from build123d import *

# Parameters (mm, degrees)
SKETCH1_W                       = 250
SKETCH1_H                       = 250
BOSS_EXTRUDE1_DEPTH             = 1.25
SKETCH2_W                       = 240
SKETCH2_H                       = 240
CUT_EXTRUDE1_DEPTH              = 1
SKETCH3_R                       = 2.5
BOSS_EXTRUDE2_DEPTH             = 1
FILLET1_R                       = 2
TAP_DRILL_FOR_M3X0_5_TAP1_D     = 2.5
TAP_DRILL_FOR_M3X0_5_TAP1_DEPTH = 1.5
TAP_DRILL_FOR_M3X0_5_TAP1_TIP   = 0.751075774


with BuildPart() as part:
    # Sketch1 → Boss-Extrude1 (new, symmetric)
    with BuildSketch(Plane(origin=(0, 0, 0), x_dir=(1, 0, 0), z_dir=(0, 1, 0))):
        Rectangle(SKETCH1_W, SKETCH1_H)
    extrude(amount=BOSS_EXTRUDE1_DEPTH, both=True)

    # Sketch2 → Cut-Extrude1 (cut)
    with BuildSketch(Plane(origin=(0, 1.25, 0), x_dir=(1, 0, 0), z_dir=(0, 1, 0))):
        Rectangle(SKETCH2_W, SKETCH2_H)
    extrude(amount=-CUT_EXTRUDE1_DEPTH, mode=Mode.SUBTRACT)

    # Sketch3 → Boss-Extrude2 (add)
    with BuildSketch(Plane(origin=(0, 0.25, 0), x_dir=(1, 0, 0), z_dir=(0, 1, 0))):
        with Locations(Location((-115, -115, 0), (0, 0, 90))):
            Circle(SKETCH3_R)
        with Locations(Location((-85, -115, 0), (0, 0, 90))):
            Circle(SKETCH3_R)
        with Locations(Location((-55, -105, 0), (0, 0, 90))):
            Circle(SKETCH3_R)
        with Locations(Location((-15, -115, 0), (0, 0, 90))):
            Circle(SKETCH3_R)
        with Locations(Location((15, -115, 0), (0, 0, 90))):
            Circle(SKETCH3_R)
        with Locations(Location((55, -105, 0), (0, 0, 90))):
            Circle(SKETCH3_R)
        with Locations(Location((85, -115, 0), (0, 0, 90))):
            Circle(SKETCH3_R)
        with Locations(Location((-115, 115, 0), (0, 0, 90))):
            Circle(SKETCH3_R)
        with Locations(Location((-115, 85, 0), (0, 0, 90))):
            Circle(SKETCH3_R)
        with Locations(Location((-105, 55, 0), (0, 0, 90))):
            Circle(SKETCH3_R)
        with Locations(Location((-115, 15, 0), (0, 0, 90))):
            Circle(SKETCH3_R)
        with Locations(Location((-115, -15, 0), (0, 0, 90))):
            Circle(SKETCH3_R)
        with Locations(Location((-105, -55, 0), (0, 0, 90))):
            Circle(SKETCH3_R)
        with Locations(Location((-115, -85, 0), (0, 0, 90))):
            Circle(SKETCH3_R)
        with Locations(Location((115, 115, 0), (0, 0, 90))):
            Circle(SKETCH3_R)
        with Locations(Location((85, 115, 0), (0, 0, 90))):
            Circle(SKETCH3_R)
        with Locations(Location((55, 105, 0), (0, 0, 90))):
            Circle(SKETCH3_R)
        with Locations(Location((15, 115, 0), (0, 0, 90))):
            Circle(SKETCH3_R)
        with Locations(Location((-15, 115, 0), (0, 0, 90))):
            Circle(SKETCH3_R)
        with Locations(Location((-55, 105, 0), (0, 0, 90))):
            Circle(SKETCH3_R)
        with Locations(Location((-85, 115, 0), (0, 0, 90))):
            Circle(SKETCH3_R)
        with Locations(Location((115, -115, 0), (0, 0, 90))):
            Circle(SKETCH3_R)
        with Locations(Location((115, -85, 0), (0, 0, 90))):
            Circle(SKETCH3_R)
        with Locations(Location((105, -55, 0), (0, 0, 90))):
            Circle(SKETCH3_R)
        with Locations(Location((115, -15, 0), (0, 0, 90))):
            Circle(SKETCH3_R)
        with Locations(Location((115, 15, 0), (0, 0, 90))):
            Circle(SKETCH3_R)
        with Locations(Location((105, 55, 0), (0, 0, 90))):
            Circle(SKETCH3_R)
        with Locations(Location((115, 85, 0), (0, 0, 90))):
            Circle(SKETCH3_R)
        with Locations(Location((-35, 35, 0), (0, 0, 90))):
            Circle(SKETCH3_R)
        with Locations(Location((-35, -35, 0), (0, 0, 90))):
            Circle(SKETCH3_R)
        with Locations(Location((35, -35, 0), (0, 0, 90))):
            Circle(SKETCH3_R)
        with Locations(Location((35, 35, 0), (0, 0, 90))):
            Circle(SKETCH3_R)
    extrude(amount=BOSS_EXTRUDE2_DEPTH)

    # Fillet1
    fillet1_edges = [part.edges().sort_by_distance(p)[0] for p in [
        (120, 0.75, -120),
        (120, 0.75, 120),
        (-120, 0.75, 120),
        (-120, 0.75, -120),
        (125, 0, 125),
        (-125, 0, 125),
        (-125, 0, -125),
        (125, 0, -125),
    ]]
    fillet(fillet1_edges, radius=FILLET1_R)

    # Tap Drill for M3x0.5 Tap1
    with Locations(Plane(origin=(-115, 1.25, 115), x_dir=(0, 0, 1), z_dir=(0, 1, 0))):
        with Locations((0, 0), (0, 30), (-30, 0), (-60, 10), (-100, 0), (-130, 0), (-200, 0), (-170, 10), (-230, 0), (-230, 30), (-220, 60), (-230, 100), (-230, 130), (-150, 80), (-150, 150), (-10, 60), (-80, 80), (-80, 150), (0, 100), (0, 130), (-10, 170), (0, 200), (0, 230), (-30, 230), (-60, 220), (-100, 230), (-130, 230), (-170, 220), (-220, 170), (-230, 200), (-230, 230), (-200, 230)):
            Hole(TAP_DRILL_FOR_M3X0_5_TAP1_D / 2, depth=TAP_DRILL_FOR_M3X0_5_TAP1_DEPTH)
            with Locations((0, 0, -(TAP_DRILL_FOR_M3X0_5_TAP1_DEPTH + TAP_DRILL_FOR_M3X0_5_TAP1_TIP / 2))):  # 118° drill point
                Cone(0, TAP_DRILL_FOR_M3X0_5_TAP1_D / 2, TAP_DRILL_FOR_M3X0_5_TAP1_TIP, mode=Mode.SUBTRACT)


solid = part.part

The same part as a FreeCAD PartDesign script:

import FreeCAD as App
import Part
import Sketcher


def edges_at(feature, points):
    """Names of the edges that pass closest to the given points."""
    edges = feature.Shape.Edges
    near = lambda p: min(range(len(edges)), key=lambda i: edges[i].distToShape(Part.Vertex(*p))[0])
    return sorted({f"Edge{near(p) + 1}" for p in points})

doc = App.newDocument("Part")
body = doc.addObject("PartDesign::Body", "Body")

# Sketch on XZ plane
sketch1 = body.newObject("Sketcher::SketchObject", "Sketch")
sketch1.AttachmentSupport = (doc.getObject("XZ_Plane"), [""])
sketch1.MapMode = "FlatFace"
sketch1.addGeometry([
    Part.LineSegment(App.Vector(-125, -125, 0), App.Vector(-125, 125, 0)),
    Part.LineSegment(App.Vector(-125, 125, 0), App.Vector(125, 125, 0)),
    Part.LineSegment(App.Vector(125, 125, 0), App.Vector(125, -125, 0)),
    Part.LineSegment(App.Vector(125, -125, 0), App.Vector(-125, -125, 0)),
], False)
sketch1.addConstraint([
    Sketcher.Constraint("Coincident", 0, 2, 1, 1),
    Sketcher.Constraint("Coincident", 1, 2, 2, 1),
    Sketcher.Constraint("Coincident", 2, 2, 3, 1),
    Sketcher.Constraint("Coincident", 3, 2, 0, 1),
    Sketcher.Constraint("Vertical", 0),
    Sketcher.Constraint("Horizontal", 1),
    Sketcher.Constraint("Vertical", 2),
    Sketcher.Constraint("Horizontal", 3),
    Sketcher.Constraint("Symmetric", 0, 2, 2, 2, -1, 1),
    Sketcher.Constraint("Equal", 3, 0),
    Sketcher.Constraint("DistanceX", 1, 1, 1, 2, 250.0),
])
pad1 = body.newObject("PartDesign::Pad", "Pad")
pad1.Profile = sketch1
pad1.Length = 2.5
pad1.Midplane = True

# Sketch on XZ plane
sketch2 = body.newObject("Sketcher::SketchObject", "Sketch001")
sketch2.AttachmentSupport = (doc.getObject("XZ_Plane"), [""])
sketch2.MapMode = "FlatFace"
sketch2.AttachmentOffset = App.Placement(App.Vector(0, 0, -1.25), App.Rotation())
sketch2.addGeometry([
    Part.LineSegment(App.Vector(-120, -120, 0), App.Vector(-120, 120, 0)),
    Part.LineSegment(App.Vector(-120, 120, 0), App.Vector(120, 120, 0)),
    Part.LineSegment(App.Vector(120, 120, 0), App.Vector(120, -120, 0)),
    Part.LineSegment(App.Vector(120, -120, 0), App.Vector(-120, -120, 0)),
], False)
sketch2.addConstraint([
    Sketcher.Constraint("Coincident", 0, 2, 1, 1),
    Sketcher.Constraint("Coincident", 1, 2, 2, 1),
    Sketcher.Constraint("Coincident", 2, 2, 3, 1),
    Sketcher.Constraint("Coincident", 3, 2, 0, 1),
    Sketcher.Constraint("Vertical", 0),
    Sketcher.Constraint("Horizontal", 1),
    Sketcher.Constraint("Vertical", 2),
    Sketcher.Constraint("Horizontal", 3),
    Sketcher.Constraint("Symmetric", 0, 2, 2, 2, -1, 1),
    Sketcher.Constraint("Equal", 3, 0),
    Sketcher.Constraint("DistanceX", 1, 1, 1, 2, 240.0),
])
pocket1 = body.newObject("PartDesign::Pocket", "Pocket")
pocket1.Profile = sketch2
pocket1.Length = 1
pocket1.Reversed = True

# Sketch on XZ plane
sketch3 = body.newObject("Sketcher::SketchObject", "Sketch002")
sketch3.AttachmentSupport = (doc.getObject("XZ_Plane"), [""])
sketch3.MapMode = "FlatFace"
sketch3.AttachmentOffset = App.Placement(App.Vector(0, 0, -0.25), App.Rotation())
sketch3.addGeometry([
    Part.Circle(App.Vector(-115, 115, 0), App.Vector(0, 0, 1), 2.5),  # 0
    Part.Circle(App.Vector(-85, 115, 0), App.Vector(0, 0, 1), 2.5),  # 1
    Part.Circle(App.Vector(-55, 105, 0), App.Vector(0, 0, 1), 2.5),  # 2
    Part.Circle(App.Vector(-15, 115, 0), App.Vector(0, 0, 1), 2.5),  # 3
    Part.Circle(App.Vector(15, 115, 0), App.Vector(0, 0, 1), 2.5),  # 4
    Part.Circle(App.Vector(55, 105, 0), App.Vector(0, 0, 1), 2.5),  # 5
    Part.Circle(App.Vector(85, 115, 0), App.Vector(0, 0, 1), 2.5),  # 6
    Part.Circle(App.Vector(-115, -115, 0), App.Vector(0, 0, 1), 2.5),  # 7
    Part.Circle(App.Vector(-115, -85, 0), App.Vector(0, 0, 1), 2.5),  # 8
    Part.Circle(App.Vector(-105, -55, 0), App.Vector(0, 0, 1), 2.5),  # 9
    Part.Circle(App.Vector(-115, -15, 0), App.Vector(0, 0, 1), 2.5),  # 10
    Part.Circle(App.Vector(-115, 15, 0), App.Vector(0, 0, 1), 2.5),  # 11
    Part.Circle(App.Vector(-105, 55, 0), App.Vector(0, 0, 1), 2.5),  # 12
    Part.Circle(App.Vector(-115, 85, 0), App.Vector(0, 0, 1), 2.5),  # 13
    Part.Circle(App.Vector(115, -115, 0), App.Vector(0, 0, 1), 2.5),  # 14
    Part.Circle(App.Vector(85, -115, 0), App.Vector(0, 0, 1), 2.5),  # 15
    Part.Circle(App.Vector(55, -105, 0), App.Vector(0, 0, 1), 2.5),  # 16
    Part.Circle(App.Vector(15, -115, 0), App.Vector(0, 0, 1), 2.5),  # 17
    Part.Circle(App.Vector(-15, -115, 0), App.Vector(0, 0, 1), 2.5),  # 18
    Part.Circle(App.Vector(-55, -105, 0), App.Vector(0, 0, 1), 2.5),  # 19
    Part.Circle(App.Vector(-85, -115, 0), App.Vector(0, 0, 1), 2.5),  # 20
    Part.Circle(App.Vector(115, 115, 0), App.Vector(0, 0, 1), 2.5),  # 21
    Part.Circle(App.Vector(115, 85, 0), App.Vector(0, 0, 1), 2.5),  # 22
    Part.Circle(App.Vector(105, 55, 0), App.Vector(0, 0, 1), 2.5),  # 23
    Part.Circle(App.Vector(115, 15, 0), App.Vector(0, 0, 1), 2.5),  # 24
    Part.Circle(App.Vector(115, -15, 0), App.Vector(0, 0, 1), 2.5),  # 25
    Part.Circle(App.Vector(105, -55, 0), App.Vector(0, 0, 1), 2.5),  # 26
    Part.Circle(App.Vector(115, -85, 0), App.Vector(0, 0, 1), 2.5),  # 27
    Part.Circle(App.Vector(-35, -35, 0), App.Vector(0, 0, 1), 2.5),  # 28
    Part.Circle(App.Vector(-35, 35, 0), App.Vector(0, 0, 1), 2.5),  # 29
    Part.Circle(App.Vector(35, 35, 0), App.Vector(0, 0, 1), 2.5),  # 30
    Part.Circle(App.Vector(35, -35, 0), App.Vector(0, 0, 1), 2.5),  # 31
], False)
sketch3.addConstraint([
    Sketcher.Constraint("Equal", 0, 1),
    Sketcher.Constraint("Equal", 1, 2),
    Sketcher.Constraint("Equal", 2, 3),
    Sketcher.Constraint("Equal", 3, 4),
    Sketcher.Constraint("Equal", 4, 5),
    Sketcher.Constraint("Equal", 5, 6),
    Sketcher.Constraint("Equal", 6, 7),
    Sketcher.Constraint("Equal", 7, 8),
    Sketcher.Constraint("Equal", 8, 9),
    Sketcher.Constraint("Equal", 9, 10),
    Sketcher.Constraint("Equal", 10, 11),
    Sketcher.Constraint("Equal", 11, 12),
    Sketcher.Constraint("Equal", 12, 13),
    Sketcher.Constraint("Equal", 13, 14),
    Sketcher.Constraint("Equal", 14, 15),
    Sketcher.Constraint("Equal", 15, 16),
    Sketcher.Constraint("Equal", 16, 17),
    Sketcher.Constraint("Equal", 17, 18),
    Sketcher.Constraint("Equal", 18, 19),
    Sketcher.Constraint("Equal", 19, 20),
    Sketcher.Constraint("Equal", 20, 21),
    Sketcher.Constraint("Equal", 21, 22),
    Sketcher.Constraint("Equal", 22, 23),
    Sketcher.Constraint("Equal", 23, 24),
    Sketcher.Constraint("Equal", 24, 25),
    Sketcher.Constraint("Equal", 25, 26),
    Sketcher.Constraint("Equal", 26, 27),
    Sketcher.Constraint("Equal", 27, 28),
    Sketcher.Constraint("Equal", 28, 29),
    Sketcher.Constraint("Equal", 29, 30),
    Sketcher.Constraint("Equal", 30, 31),
    Sketcher.Constraint("Symmetric", 0, 3, 14, 3, -1, 1),
    Sketcher.Constraint("Symmetric", 1, 3, 15, 3, -1, 1),
    Sketcher.Constraint("Symmetric", 2, 3, 16, 3, -1, 1),
    Sketcher.Constraint("Symmetric", 3, 3, 17, 3, -1, 1),
    Sketcher.Constraint("Symmetric", 4, 3, 18, 3, -1, 1),
    Sketcher.Constraint("Symmetric", 5, 3, 19, 3, -1, 1),
    Sketcher.Constraint("Symmetric", 6, 3, 20, 3, -1, 1),
    Sketcher.Constraint("Symmetric", 7, 3, 21, 3, -1, 1),
    Sketcher.Constraint("Symmetric", 8, 3, 22, 3, -1, 1),
    Sketcher.Constraint("Symmetric", 9, 3, 23, 3, -1, 1),
    Sketcher.Constraint("Symmetric", 10, 3, 24, 3, -1, 1),
    Sketcher.Constraint("Symmetric", 11, 3, 25, 3, -1, 1),
    Sketcher.Constraint("Symmetric", 12, 3, 26, 3, -1, 1),
    Sketcher.Constraint("Symmetric", 13, 3, 27, 3, -1, 1),
    Sketcher.Constraint("Symmetric", 28, 3, 30, 3, -1, 1),
    Sketcher.Constraint("Symmetric", 29, 3, 31, 3, -1, 1),
    Sketcher.Constraint("Symmetric", 3, 3, 4, 3, -2),
    Sketcher.Constraint("Symmetric", 2, 3, 5, 3, -2),
    Sketcher.Constraint("Symmetric", 1, 3, 6, 3, -2),
    Sketcher.Constraint("Symmetric", 7, 3, 14, 3, -2),
    Sketcher.Constraint("Symmetric", 13, 3, 22, 3, -2),
    Sketcher.Constraint("Symmetric", 12, 3, 23, 3, -2),
    Sketcher.Constraint("Symmetric", 11, 3, 24, 3, -2),
    Sketcher.Constraint("Symmetric", 29, 3, 30, 3, -2),
    Sketcher.Constraint("Horizontal", 0, 3, 1, 3),
    Sketcher.Constraint("Horizontal", 1, 3, 3, 3),
    Sketcher.Constraint("Vertical", 7, 3, 8, 3),
    Sketcher.Constraint("Vertical", 8, 3, 10, 3),
    Sketcher.Constraint("Diameter", 0, 5.0),
    Sketcher.Constraint("DistanceX", 0, 3, -1, 1, 115.0),
    Sketcher.Constraint("DistanceY", -1, 1, 0, 3, 115.0),
    Sketcher.Constraint("DistanceX", 1, 3, -1, 1, 85.0),
    Sketcher.Constraint("DistanceX", 2, 3, -1, 1, 55.0),
    Sketcher.Constraint("DistanceY", -1, 1, 2, 3, 105.0),
    Sketcher.Constraint("DistanceX", 3, 3, -1, 1, 15.0),
    Sketcher.Constraint("DistanceY", 8, 3, -1, 1, 85.0),
    Sketcher.Constraint("DistanceX", 9, 3, -1, 1, 105.0),
    Sketcher.Constraint("DistanceY", 9, 3, -1, 1, 55.0),
    Sketcher.Constraint("DistanceY", 10, 3, -1, 1, 15.0),
    Sketcher.Constraint("DistanceX", 28, 3, -1, 1, 35.0),
    Sketcher.Constraint("DistanceY", 28, 3, -1, 1, 35.0),
])
pad2 = body.newObject("PartDesign::Pad", "Pad001")
pad2.Profile = sketch3
pad2.Length = 1
pad2.Reversed = True
doc.recompute()

fillet = body.newObject("PartDesign::Fillet", "Fillet")
fillet.Base = (pad2, edges_at(pad2, [
    (120, 0.75, -120),
    (120, 0.75, 120),
    (-120, 0.75, 120),
    (-120, 0.75, -120),
    (125, 0, 125),
    (-125, 0, 125),
    (-125, 0, -125),
    (125, 0, -125),
]))
fillet.Radius = 2

# Sketch on XZ plane
sketch4 = body.newObject("Sketcher::SketchObject", "Sketch003")
sketch4.AttachmentSupport = (doc.getObject("XZ_Plane"), [""])
sketch4.MapMode = "FlatFace"
sketch4.AttachmentOffset = App.Placement(App.Vector(0, 0, -1.25), App.Rotation())
sketch4.addGeometry([
    Part.Circle(App.Vector(-115, 115, 0), App.Vector(0, 0, 1), 1.2),  # 0
    Part.Circle(App.Vector(-85, 115, 0), App.Vector(0, 0, 1), 1.2),  # 1
    Part.Circle(App.Vector(-115, 85, 0), App.Vector(0, 0, 1), 1.2),  # 2
    Part.Circle(App.Vector(-105, 55, 0), App.Vector(0, 0, 1), 1.2),  # 3
    Part.Circle(App.Vector(-115, 15, 0), App.Vector(0, 0, 1), 1.2),  # 4
    Part.Circle(App.Vector(-115, -15, 0), App.Vector(0, 0, 1), 1.2),  # 5
    Part.Circle(App.Vector(-115, -85, 0), App.Vector(0, 0, 1), 1.2),  # 6
    Part.Circle(App.Vector(-105, -55, 0), App.Vector(0, 0, 1), 1.2),  # 7
    Part.Circle(App.Vector(-115, -115, 0), App.Vector(0, 0, 1), 1.2),  # 8
    Part.Circle(App.Vector(-85, -115, 0), App.Vector(0, 0, 1), 1.2),  # 9
    Part.Circle(App.Vector(-55, -105, 0), App.Vector(0, 0, 1), 1.2),  # 10
    Part.Circle(App.Vector(-15, -115, 0), App.Vector(0, 0, 1), 1.2),  # 11
    Part.Circle(App.Vector(15, -115, 0), App.Vector(0, 0, 1), 1.2),  # 12
    Part.Circle(App.Vector(-35, -35, 0), App.Vector(0, 0, 1), 1.2),  # 13
    Part.Circle(App.Vector(35, -35, 0), App.Vector(0, 0, 1), 1.2),  # 14
    Part.Circle(App.Vector(-55, 105, 0), App.Vector(0, 0, 1), 1.2),  # 15
    Part.Circle(App.Vector(-35, 35, 0), App.Vector(0, 0, 1), 1.2),  # 16
    Part.Circle(App.Vector(35, 35, 0), App.Vector(0, 0, 1), 1.2),  # 17
    Part.Circle(App.Vector(-15, 115, 0), App.Vector(0, 0, 1), 1.2),  # 18
    Part.Circle(App.Vector(15, 115, 0), App.Vector(0, 0, 1), 1.2),  # 19
    Part.Circle(App.Vector(55, 105, 0), App.Vector(0, 0, 1), 1.2),  # 20
    Part.Circle(App.Vector(85, 115, 0), App.Vector(0, 0, 1), 1.2),  # 21
    Part.Circle(App.Vector(115, 115, 0), App.Vector(0, 0, 1), 1.2),  # 22
    Part.Circle(App.Vector(115, 85, 0), App.Vector(0, 0, 1), 1.2),  # 23
    Part.Circle(App.Vector(105, 55, 0), App.Vector(0, 0, 1), 1.2),  # 24
    Part.Circle(App.Vector(115, 15, 0), App.Vector(0, 0, 1), 1.2),  # 25
    Part.Circle(App.Vector(115, -15, 0), App.Vector(0, 0, 1), 1.2),  # 26
    Part.Circle(App.Vector(105, -55, 0), App.Vector(0, 0, 1), 1.2),  # 27
    Part.Circle(App.Vector(55, -105, 0), App.Vector(0, 0, 1), 1.2),  # 28
    Part.Circle(App.Vector(85, -115, 0), App.Vector(0, 0, 1), 1.2),  # 29
    Part.Circle(App.Vector(115, -115, 0), App.Vector(0, 0, 1), 1.2),  # 30
    Part.Circle(App.Vector(115, -85, 0), App.Vector(0, 0, 1), 1.2),  # 31
], False)
sketch4.addConstraint([
    Sketcher.Constraint("Equal", 0, 1),
    Sketcher.Constraint("Equal", 1, 2),
    Sketcher.Constraint("Equal", 2, 3),
    Sketcher.Constraint("Equal", 3, 4),
    Sketcher.Constraint("Equal", 4, 5),
    Sketcher.Constraint("Equal", 5, 6),
    Sketcher.Constraint("Equal", 6, 7),
    Sketcher.Constraint("Equal", 7, 8),
    Sketcher.Constraint("Equal", 8, 9),
    Sketcher.Constraint("Equal", 9, 10),
    Sketcher.Constraint("Equal", 10, 11),
    Sketcher.Constraint("Equal", 11, 12),
    Sketcher.Constraint("Equal", 12, 13),
    Sketcher.Constraint("Equal", 13, 14),
    Sketcher.Constraint("Equal", 14, 15),
    Sketcher.Constraint("Equal", 15, 16),
    Sketcher.Constraint("Equal", 16, 17),
    Sketcher.Constraint("Equal", 17, 18),
    Sketcher.Constraint("Equal", 18, 19),
    Sketcher.Constraint("Equal", 19, 20),
    Sketcher.Constraint("Equal", 20, 21),
    Sketcher.Constraint("Equal", 21, 22),
    Sketcher.Constraint("Equal", 22, 23),
    Sketcher.Constraint("Equal", 23, 24),
    Sketcher.Constraint("Equal", 24, 25),
    Sketcher.Constraint("Equal", 25, 26),
    Sketcher.Constraint("Equal", 26, 27),
    Sketcher.Constraint("Equal", 27, 28),
    Sketcher.Constraint("Equal", 28, 29),
    Sketcher.Constraint("Equal", 29, 30),
    Sketcher.Constraint("Equal", 30, 31),
    Sketcher.Constraint("Symmetric", 14, 3, 16, 3, -1, 1),
    Sketcher.Constraint("Symmetric", 13, 3, 17, 3, -1, 1),
    Sketcher.Constraint("Symmetric", 12, 3, 18, 3, -1, 1),
    Sketcher.Constraint("Symmetric", 11, 3, 19, 3, -1, 1),
    Sketcher.Constraint("Symmetric", 10, 3, 20, 3, -1, 1),
    Sketcher.Constraint("Symmetric", 9, 3, 21, 3, -1, 1),
    Sketcher.Constraint("Symmetric", 8, 3, 22, 3, -1, 1),
    Sketcher.Constraint("Symmetric", 6, 3, 23, 3, -1, 1),
    Sketcher.Constraint("Symmetric", 7, 3, 24, 3, -1, 1),
    Sketcher.Constraint("Symmetric", 5, 3, 25, 3, -1, 1),
    Sketcher.Constraint("Symmetric", 4, 3, 26, 3, -1, 1),
    Sketcher.Constraint("Symmetric", 3, 3, 27, 3, -1, 1),
    Sketcher.Constraint("Symmetric", 15, 3, 28, 3, -1, 1),
    Sketcher.Constraint("Symmetric", 1, 3, 29, 3, -1, 1),
    Sketcher.Constraint("Symmetric", 0, 3, 30, 3, -1, 1),
    Sketcher.Constraint("Symmetric", 2, 3, 31, 3, -1, 1),
    Sketcher.Constraint("Symmetric", 11, 3, 12, 3, -2),
    Sketcher.Constraint("Symmetric", 13, 3, 14, 3, -2),
    Sketcher.Constraint("Symmetric", 15, 3, 20, 3, -2),
    Sketcher.Constraint("Symmetric", 1, 3, 21, 3, -2),
    Sketcher.Constraint("Symmetric", 0, 3, 22, 3, -2),
    Sketcher.Constraint("Symmetric", 2, 3, 23, 3, -2),
    Sketcher.Constraint("Symmetric", 3, 3, 24, 3, -2),
    Sketcher.Constraint("Symmetric", 4, 3, 25, 3, -2),
    Sketcher.Constraint("Horizontal", 0, 3, 1, 3),
    Sketcher.Constraint("Horizontal", 9, 3, 11, 3),
    Sketcher.Constraint("Vertical", 0, 3, 2, 3),
    Sketcher.Constraint("Vertical", 2, 3, 4, 3),
    Sketcher.Constraint("Diameter", 0, 2.5),
    Sketcher.Constraint("DistanceX", 0, 3, -1, 1, 115.0),
    Sketcher.Constraint("DistanceY", -1, 1, 0, 3, 115.0),
    Sketcher.Constraint("DistanceX", 1, 3, -1, 1, 85.0),
    Sketcher.Constraint("DistanceY", -1, 1, 2, 3, 85.0),
    Sketcher.Constraint("DistanceX", 3, 3, -1, 1, 105.0),
    Sketcher.Constraint("DistanceY", -1, 1, 3, 3, 55.0),
    Sketcher.Constraint("DistanceY", -1, 1, 4, 3, 15.0),
    Sketcher.Constraint("DistanceX", 10, 3, -1, 1, 55.0),
    Sketcher.Constraint("DistanceY", 10, 3, -1, 1, 105.0),
    Sketcher.Constraint("DistanceX", 11, 3, -1, 1, 15.0),
    Sketcher.Constraint("DistanceX", 13, 3, -1, 1, 35.0),
    Sketcher.Constraint("DistanceY", 13, 3, -1, 1, 35.0),
])
doc.recompute()
hole = body.newObject("PartDesign::Hole", "Hole")
hole.Profile = sketch4
hole.ThreadType = "None"
hole.Diameter = 2.5
hole.DepthType = "Dimension"
hole.Depth = 1.5
hole.DrillPoint = "Angled"
hole.DrillPointAngle = 118
hole.Reversed = True

doc.recompute()
